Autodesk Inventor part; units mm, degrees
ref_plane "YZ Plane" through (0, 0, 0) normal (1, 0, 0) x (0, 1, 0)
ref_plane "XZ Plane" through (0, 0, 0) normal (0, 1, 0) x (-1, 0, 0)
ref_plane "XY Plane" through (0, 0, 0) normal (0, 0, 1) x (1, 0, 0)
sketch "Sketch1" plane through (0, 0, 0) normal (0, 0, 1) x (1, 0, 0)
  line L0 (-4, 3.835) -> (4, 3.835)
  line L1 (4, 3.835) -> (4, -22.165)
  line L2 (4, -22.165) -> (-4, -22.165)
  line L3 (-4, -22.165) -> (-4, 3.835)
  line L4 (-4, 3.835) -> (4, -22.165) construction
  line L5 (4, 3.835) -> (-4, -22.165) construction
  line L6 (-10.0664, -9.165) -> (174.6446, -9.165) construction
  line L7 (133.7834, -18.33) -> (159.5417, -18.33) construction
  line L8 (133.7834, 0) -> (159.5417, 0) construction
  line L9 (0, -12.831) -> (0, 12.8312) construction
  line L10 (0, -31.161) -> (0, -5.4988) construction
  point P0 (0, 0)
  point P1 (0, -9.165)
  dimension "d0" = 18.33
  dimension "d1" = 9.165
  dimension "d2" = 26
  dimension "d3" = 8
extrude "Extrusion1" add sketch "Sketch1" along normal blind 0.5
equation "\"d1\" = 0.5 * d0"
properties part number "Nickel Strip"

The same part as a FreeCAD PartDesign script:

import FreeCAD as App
import Part
import Sketcher
from FreeCAD import Vector
Q = App.Units.Quantity

doc = App.newDocument("Part")
body = doc.addObject("PartDesign::Body", "Body")

# Sketch on XY plane
sketch1 = doc.addObject("Sketcher::SketchObject", "Sketch")
body.addObject(sketch1)
sketch1.AttachmentSupport = (doc.XY_Plane, [""])
sketch1.MapMode = "FlatFace"
sketch1.addGeometry([
    Part.LineSegment(Vector(4, 4, 0), Vector(-4, 4, 0)),
    Part.LineSegment(Vector(-4, 4, 0), Vector(-4, -22, 0)),
    Part.LineSegment(Vector(-4, -22, 0), Vector(4, -22, 0)),
    Part.LineSegment(Vector(4, -22, 0), Vector(4, 4, 0)),
], False)
sketch1.addConstraint([
    Sketcher.Constraint("Coincident", 0, 2, 1, 1),
    Sketcher.Constraint("Coincident", 1, 2, 2, 1),
    Sketcher.Constraint("Coincident", 2, 2, 3, 1),
    Sketcher.Constraint("Coincident", 3, 2, 0, 1),
    Sketcher.Constraint("Horizontal", 0),
    Sketcher.Constraint("Vertical", 1),
    Sketcher.Constraint("Horizontal", 2),
    Sketcher.Constraint("Vertical", 3),
    Sketcher.Constraint("DistanceX", 0, 2, 0, 1, Q("8 mm")),
    Sketcher.Constraint("DistanceY", 1, 2, 1, 1, Q("26 mm")),
    Sketcher.Constraint("DistanceX", 0, 2, -1, 1, Q("4 mm")),
    Sketcher.Constraint("DistanceY", -1, 1, 0, 2, Q("3.835 mm")),
])
pad1 = doc.addObject("PartDesign::Pad", "Pad")
body.addObject(pad1)
pad1.Profile = sketch1
pad1.Length = 0.5

doc.recompute()
